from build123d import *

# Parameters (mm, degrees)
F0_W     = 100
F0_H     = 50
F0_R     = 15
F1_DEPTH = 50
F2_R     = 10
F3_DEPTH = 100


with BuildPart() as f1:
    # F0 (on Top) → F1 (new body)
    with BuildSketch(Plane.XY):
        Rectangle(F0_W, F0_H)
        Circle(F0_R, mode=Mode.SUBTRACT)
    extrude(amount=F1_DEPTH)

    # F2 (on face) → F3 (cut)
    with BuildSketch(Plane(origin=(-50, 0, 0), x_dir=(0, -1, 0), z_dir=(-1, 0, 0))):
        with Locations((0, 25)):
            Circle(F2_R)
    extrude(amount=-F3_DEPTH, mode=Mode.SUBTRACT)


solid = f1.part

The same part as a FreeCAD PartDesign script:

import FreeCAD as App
import Part
import Sketcher
from FreeCAD import Vector

doc = App.newDocument("Part")
body = doc.addObject("PartDesign::Body", "Body")

# Sketch on XY plane
sketch1 = body.newObject("Sketcher::SketchObject", "Sketch")
sketch1.AttachmentSupport = (doc.getObject("XY_Plane"), [""])
sketch1.MapMode = "FlatFace"
sketch1.addGeometry(Part.LineSegment(Vector(-50, 25, 0), Vector(-50, -25, 0)), False)
sketch1.addGeometry(Part.LineSegment(Vector(-50, -25, 0), Vector(50, -25, 0)), False)
sketch1.addGeometry(Part.LineSegment(Vector(50, -25, 0), Vector(50, 25, 0)), False)
sketch1.addGeometry(Part.LineSegment(Vector(50, 25, 0), Vector(-50, 25, 0)), False)
sketch1.addGeometry(Part.Circle(Vector(0, 0, 0), Vector(0, 0, 1), 15), False)
sketch1.addConstraint(Sketcher.Constraint("Coincident", 0, 2, 1, 1))
sketch1.addConstraint(Sketcher.Constraint("Coincident", 1, 2, 2, 1))
sketch1.addConstraint(Sketcher.Constraint("Coincident", 2, 2, 3, 1))
sketch1.addConstraint(Sketcher.Constraint("Coincident", 3, 2, 0, 1))
sketch1.addConstraint(Sketcher.Constraint("Vertical", 0))
sketch1.addConstraint(Sketcher.Constraint("Horizontal", 1))
sketch1.addConstraint(Sketcher.Constraint("Vertical", 2))
sketch1.addConstraint(Sketcher.Constraint("Horizontal", 3))
sketch1.addConstraint(Sketcher.Constraint("Coincident", 4, 3, -1, 1))
sketch1.addConstraint(Sketcher.Constraint("Symmetric", 0, 2, 2, 2, -1, 1))
sketch1.addConstraint(Sketcher.Constraint("Diameter", 4, 30.0))
sketch1.addConstraint(Sketcher.Constraint("DistanceX", 1, 1, 1, 2, 100.0))
sketch1.addConstraint(Sketcher.Constraint("DistanceY", 0, 2, 0, 1, 50.0))
pad1 = body.newObject("PartDesign::Pad", "Pad")
pad1.Profile = sketch1
pad1.Length = 50

# Sketch on YZ plane
sketch2 = body.newObject("Sketcher::SketchObject", "Sketch001")
sketch2.AttachmentSupport = (doc.getObject("YZ_Plane"), [""])
sketch2.MapMode = "FlatFace"
sketch2.AttachmentOffset = App.Placement(Vector(0, 0, -50), App.Rotation())
sketch2.addGeometry(Part.Circle(Vector(0, 25, 0), Vector(0, 0, 1), 10), False)
sketch2.addConstraint(Sketcher.Constraint("PointOnObject", 0, 3, -2))
sketch2.addConstraint(Sketcher.Constraint("Diameter", 0, 20.0))
sketch2.addConstraint(Sketcher.Constraint("DistanceY", -1, 1, 0, 3, 25.0))
pocket1 = body.newObject("PartDesign::Pocket", "Pocket")
pocket1.Profile = sketch2
pocket1.Length = 100
pocket1.Reversed = True

doc.recompute()
